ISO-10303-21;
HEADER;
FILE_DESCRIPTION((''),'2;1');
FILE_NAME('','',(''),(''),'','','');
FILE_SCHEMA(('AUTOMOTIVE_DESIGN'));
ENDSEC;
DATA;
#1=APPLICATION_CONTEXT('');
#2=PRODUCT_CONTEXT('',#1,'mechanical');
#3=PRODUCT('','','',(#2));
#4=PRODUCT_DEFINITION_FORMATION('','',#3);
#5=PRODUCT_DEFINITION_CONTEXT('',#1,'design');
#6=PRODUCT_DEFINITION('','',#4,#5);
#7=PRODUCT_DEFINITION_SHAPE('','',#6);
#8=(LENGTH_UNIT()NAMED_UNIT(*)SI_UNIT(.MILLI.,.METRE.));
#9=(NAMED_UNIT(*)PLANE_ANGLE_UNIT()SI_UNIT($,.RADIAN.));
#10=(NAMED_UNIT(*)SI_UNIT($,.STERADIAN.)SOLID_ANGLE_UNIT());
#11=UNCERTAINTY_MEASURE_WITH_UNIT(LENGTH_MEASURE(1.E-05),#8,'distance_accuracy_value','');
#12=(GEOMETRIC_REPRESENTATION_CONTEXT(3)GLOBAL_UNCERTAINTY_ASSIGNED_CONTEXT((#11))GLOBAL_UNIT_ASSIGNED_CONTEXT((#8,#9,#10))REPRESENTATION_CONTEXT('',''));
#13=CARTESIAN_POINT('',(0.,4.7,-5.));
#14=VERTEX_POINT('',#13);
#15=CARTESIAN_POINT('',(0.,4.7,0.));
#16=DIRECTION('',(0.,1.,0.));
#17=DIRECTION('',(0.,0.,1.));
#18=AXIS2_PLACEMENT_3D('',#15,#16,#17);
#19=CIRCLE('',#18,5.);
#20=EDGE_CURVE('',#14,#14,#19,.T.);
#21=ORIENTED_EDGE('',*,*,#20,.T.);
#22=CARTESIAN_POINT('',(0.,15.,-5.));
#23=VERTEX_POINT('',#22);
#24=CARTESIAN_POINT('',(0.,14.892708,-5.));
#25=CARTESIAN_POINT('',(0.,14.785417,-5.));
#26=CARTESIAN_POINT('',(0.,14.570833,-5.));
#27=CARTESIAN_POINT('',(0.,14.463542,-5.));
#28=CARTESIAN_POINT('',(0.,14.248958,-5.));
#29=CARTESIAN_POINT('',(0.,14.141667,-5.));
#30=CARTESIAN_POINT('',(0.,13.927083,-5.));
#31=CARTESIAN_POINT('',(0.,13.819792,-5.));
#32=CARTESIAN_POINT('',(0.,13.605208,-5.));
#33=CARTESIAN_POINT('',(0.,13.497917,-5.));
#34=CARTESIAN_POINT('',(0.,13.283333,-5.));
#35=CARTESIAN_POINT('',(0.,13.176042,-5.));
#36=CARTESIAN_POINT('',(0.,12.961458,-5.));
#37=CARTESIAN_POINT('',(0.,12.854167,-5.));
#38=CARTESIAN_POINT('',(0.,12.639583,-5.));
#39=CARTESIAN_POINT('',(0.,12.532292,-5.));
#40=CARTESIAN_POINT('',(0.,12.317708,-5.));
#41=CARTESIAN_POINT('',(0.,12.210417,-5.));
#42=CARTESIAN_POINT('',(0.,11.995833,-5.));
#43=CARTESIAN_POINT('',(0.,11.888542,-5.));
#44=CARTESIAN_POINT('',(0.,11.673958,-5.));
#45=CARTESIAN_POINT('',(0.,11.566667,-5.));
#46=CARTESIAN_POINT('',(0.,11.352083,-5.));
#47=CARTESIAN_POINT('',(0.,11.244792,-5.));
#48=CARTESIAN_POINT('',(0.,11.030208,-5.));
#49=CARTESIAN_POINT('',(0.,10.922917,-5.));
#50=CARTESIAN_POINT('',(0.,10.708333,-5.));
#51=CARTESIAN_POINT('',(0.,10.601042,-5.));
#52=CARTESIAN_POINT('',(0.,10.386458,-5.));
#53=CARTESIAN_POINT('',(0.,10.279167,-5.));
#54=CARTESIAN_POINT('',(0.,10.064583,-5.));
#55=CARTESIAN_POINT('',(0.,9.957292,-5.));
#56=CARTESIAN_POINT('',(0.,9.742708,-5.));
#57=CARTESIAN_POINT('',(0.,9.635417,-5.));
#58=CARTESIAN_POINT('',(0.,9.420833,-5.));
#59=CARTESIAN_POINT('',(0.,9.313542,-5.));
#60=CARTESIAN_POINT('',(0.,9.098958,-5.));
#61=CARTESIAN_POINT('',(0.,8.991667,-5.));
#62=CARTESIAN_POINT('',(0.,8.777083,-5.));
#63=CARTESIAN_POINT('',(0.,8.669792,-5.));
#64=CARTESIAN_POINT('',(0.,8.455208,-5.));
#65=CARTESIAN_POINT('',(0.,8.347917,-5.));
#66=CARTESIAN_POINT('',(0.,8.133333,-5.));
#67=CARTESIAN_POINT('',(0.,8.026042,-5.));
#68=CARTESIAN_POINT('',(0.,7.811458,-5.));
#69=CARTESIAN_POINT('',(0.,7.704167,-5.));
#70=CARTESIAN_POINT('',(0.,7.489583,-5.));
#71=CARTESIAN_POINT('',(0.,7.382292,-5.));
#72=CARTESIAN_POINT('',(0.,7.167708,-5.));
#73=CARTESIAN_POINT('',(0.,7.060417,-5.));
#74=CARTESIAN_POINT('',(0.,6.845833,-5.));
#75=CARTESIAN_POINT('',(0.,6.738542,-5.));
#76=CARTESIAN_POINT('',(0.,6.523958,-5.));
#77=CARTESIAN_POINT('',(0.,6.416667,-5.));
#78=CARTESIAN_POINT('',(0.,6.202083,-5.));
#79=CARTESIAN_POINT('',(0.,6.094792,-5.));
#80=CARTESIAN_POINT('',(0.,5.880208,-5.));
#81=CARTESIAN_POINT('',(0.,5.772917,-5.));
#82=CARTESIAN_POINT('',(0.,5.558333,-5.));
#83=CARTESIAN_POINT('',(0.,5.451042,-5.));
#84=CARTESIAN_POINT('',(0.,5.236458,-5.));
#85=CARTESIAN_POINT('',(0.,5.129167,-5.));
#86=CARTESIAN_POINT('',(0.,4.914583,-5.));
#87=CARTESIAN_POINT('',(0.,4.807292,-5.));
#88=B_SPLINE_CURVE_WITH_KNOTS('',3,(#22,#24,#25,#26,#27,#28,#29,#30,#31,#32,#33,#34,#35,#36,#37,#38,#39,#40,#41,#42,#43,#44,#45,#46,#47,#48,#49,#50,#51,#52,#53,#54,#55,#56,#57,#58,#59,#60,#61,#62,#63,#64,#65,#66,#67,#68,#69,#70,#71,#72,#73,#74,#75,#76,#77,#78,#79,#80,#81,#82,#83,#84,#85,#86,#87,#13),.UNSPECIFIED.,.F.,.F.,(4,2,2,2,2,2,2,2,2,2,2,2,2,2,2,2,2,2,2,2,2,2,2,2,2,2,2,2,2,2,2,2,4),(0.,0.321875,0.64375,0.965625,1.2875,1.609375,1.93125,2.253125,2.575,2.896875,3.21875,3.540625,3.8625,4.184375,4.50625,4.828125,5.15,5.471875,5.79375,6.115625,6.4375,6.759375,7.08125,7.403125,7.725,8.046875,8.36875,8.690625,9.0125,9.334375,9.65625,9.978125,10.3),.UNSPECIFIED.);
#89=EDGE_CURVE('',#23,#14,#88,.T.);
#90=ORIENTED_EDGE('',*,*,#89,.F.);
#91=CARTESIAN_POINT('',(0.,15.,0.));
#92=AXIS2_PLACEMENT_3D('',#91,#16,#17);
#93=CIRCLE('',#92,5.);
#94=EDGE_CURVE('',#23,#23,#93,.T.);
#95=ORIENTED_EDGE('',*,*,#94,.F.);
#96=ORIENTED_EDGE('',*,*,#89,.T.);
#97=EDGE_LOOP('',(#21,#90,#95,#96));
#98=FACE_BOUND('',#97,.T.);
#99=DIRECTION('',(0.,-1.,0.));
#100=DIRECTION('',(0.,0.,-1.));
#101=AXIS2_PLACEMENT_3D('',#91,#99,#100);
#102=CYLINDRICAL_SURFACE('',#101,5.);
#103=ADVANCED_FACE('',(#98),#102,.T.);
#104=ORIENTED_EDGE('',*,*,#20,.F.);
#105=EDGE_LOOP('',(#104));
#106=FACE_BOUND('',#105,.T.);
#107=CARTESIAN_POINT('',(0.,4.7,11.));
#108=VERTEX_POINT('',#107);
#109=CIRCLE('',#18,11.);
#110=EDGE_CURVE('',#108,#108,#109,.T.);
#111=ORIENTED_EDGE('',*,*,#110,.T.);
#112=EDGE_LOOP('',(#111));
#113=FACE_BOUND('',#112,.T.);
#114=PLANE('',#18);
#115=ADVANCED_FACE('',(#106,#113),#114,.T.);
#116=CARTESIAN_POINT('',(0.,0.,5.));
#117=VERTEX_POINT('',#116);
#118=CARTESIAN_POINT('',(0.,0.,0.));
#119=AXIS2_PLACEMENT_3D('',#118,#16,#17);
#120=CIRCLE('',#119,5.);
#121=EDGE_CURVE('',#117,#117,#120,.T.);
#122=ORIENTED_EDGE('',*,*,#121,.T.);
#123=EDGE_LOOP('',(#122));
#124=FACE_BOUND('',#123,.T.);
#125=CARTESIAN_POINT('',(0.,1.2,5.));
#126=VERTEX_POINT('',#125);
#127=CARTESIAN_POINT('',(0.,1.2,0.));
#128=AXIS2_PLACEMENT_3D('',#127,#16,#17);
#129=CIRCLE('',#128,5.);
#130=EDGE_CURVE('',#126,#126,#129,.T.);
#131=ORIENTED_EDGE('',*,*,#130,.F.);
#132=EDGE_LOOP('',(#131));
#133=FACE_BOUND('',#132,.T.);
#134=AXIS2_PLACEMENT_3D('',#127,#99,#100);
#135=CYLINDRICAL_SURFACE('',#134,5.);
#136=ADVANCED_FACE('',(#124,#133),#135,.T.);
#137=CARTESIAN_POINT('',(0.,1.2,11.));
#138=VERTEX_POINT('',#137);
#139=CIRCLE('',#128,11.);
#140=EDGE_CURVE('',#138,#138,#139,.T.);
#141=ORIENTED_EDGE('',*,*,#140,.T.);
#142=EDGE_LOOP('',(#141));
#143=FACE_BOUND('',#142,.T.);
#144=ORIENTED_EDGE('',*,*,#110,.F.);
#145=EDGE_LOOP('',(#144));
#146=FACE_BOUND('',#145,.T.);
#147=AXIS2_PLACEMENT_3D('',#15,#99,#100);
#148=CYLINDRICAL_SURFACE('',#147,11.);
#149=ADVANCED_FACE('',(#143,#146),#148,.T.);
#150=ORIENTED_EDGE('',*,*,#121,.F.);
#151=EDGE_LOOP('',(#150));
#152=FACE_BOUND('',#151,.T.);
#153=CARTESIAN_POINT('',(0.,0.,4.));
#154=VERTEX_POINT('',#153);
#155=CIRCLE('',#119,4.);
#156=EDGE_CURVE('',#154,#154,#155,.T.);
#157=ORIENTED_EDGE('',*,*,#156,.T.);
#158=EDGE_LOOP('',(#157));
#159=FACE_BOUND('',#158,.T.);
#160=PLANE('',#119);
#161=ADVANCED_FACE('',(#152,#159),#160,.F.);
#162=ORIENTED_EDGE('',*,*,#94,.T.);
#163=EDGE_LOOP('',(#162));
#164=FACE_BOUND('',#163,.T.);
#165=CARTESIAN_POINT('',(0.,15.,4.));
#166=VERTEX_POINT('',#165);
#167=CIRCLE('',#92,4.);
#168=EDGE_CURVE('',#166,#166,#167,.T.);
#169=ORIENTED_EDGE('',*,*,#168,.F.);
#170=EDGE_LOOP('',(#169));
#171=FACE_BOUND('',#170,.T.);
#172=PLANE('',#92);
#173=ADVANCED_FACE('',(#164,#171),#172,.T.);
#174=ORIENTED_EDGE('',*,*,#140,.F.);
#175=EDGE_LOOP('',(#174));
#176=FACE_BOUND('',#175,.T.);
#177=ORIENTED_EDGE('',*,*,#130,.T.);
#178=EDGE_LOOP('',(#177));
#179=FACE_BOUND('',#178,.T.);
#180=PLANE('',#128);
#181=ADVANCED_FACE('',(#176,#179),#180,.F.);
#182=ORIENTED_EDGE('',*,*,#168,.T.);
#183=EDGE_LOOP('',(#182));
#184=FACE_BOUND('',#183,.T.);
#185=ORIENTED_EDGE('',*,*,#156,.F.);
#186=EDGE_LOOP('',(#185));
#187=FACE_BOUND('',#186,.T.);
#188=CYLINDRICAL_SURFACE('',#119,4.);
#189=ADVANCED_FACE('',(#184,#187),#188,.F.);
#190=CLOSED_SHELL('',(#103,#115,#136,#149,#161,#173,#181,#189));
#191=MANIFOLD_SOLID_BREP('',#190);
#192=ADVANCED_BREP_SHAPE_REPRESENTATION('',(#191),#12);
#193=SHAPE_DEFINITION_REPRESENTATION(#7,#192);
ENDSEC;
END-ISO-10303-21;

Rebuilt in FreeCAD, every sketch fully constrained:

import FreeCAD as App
import Part
import Sketcher

V = App.Vector
Q = App.Units.Quantity

doc = App.newDocument("Part")
params = doc.addObject("Spreadsheet::Sheet", "Params")
for row, (alias, value) in enumerate([
    ("sketch1_diameter", "10 mm"),
    ("pad1_length", "1.2 mm"),
    ("sketch2_diameter", "22 mm"),
    ("pad2_length", "3.5 mm"),
    ("sketch3_diameter", "10 mm"),
    ("pad3_length", "10.3 mm"),
    ("sketch4_diameter", "8 mm"),
], start=1):
    params.set(f"A{row}", alias)
    params.set(f"B{row}", "=" + value)
    params.setAlias(f"B{row}", alias)

body = doc.addObject("PartDesign::Body", "Body")

# Sketch on XZ plane
sketch1 = body.newObject("Sketcher::SketchObject", "Sketch")
sketch1.AttachmentSupport = (doc.getObject("XZ_Plane"), [""])
sketch1.MapMode = "FlatFace"
sketch1.addGeometry(Part.Circle(V(0, 0, 0), V(0, 0, 1), 5), False)
sketch1.addConstraint([
    Sketcher.Constraint("Coincident", 0, 3, -1, 1),
    Sketcher.Constraint("Diameter", 0, Q("10 mm")),
])
sketch1.setExpression("Constraints[1]", "Params.sketch1_diameter")
pad1 = body.newObject("PartDesign::Pad", "Pad")
pad1.Profile = sketch1
pad1.setExpression("Length", "Params.pad1_length")
pad1.Reversed = True

# Sketch on XZ plane
sketch2 = body.newObject("Sketcher::SketchObject", "Sketch001")
sketch2.AttachmentSupport = (doc.getObject("XZ_Plane"), [""])
sketch2.MapMode = "FlatFace"
sketch2.AttachmentOffset = App.Placement(V(0, 0, -1.2), App.Rotation())
sketch2.addGeometry(Part.Circle(V(0, 0, 0), V(0, 0, 1), 11), False)
sketch2.addConstraint([
    Sketcher.Constraint("Coincident", 0, 3, -1, 1),
    Sketcher.Constraint("Diameter", 0, Q("22 mm")),
])
sketch2.setExpression("Constraints[1]", "Params.sketch2_diameter")
pad2 = body.newObject("PartDesign::Pad", "Pad001")
pad2.Profile = sketch2
pad2.setExpression("Length", "Params.pad2_length")
pad2.Reversed = True

# Sketch on XZ plane
sketch3 = body.newObject("Sketcher::SketchObject", "Sketch002")
sketch3.AttachmentSupport = (doc.getObject("XZ_Plane"), [""])
sketch3.MapMode = "FlatFace"
sketch3.AttachmentOffset = App.Placement(V(0, 0, -4.7), App.Rotation())
sketch3.addGeometry(Part.Circle(V(0, 0, 0), V(0, 0, 1), 5), False)
sketch3.addConstraint([
    Sketcher.Constraint("Coincident", 0, 3, -1, 1),
    Sketcher.Constraint("Diameter", 0, Q("10 mm")),
])
sketch3.setExpression("Constraints[1]", "Params.sketch3_diameter")
pad3 = body.newObject("PartDesign::Pad", "Pad002")
pad3.Profile = sketch3
pad3.setExpression("Length", "Params.pad3_length")
pad3.Reversed = True

# Sketch on XZ plane
sketch4 = body.newObject("Sketcher::SketchObject", "Sketch003")
sketch4.AttachmentSupport = (doc.getObject("XZ_Plane"), [""])
sketch4.MapMode = "FlatFace"
sketch4.AttachmentOffset = App.Placement(V(0, 0, -15), App.Rotation())
sketch4.addGeometry(Part.Circle(V(0, 0, 0), V(0, 0, 1), 4), False)
sketch4.addConstraint([
    Sketcher.Constraint("Coincident", 0, 3, -1, 1),
    Sketcher.Constraint("Diameter", 0, Q("8 mm")),
])
sketch4.setExpression("Constraints[1]", "Params.sketch4_diameter")
pocket1 = body.newObject("PartDesign::Pocket", "Pocket")
pocket1.Profile = sketch4
pocket1.Type = "ThroughAll"
pocket1.Reversed = True

doc.recompute()
